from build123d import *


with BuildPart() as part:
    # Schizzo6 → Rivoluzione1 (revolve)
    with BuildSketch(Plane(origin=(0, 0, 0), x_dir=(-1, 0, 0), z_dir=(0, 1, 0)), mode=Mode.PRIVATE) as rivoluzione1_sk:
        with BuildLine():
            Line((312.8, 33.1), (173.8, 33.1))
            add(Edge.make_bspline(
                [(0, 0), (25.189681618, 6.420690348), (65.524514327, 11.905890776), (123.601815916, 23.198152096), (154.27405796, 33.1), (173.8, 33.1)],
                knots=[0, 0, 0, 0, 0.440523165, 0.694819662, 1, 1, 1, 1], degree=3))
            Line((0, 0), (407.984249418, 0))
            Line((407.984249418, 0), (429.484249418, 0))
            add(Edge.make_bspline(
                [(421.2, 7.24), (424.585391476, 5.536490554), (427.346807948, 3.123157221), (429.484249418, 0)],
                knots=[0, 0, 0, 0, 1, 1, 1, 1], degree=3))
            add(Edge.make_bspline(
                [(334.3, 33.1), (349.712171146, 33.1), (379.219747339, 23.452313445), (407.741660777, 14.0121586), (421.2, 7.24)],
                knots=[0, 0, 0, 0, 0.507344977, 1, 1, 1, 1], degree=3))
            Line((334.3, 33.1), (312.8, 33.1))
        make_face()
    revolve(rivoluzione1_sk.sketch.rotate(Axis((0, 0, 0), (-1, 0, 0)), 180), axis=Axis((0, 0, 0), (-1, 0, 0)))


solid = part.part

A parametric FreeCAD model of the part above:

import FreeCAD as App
import Part
import Sketcher

V = App.Vector

doc = App.newDocument("Part")
body = doc.addObject("PartDesign::Body", "Body")

# Sketch on XZ plane
sketch1 = body.newObject("Sketcher::SketchObject", "Sketch")
sketch1.AttachmentSupport = (doc.getObject("XZ_Plane"), [""])
sketch1.MapMode = "FlatFace"
sketch1.addGeometry([
    Part.BSplineCurve([V(0, 0, 0), V(-25.189682, 6.42069, 0), V(-65.524514, 11.905891, 0), V(-123.601816, 23.198152, 0), V(-154.274058, 33.1, 0), V(-173.8, 33.1, 0)], [4, 1, 1, 4], [0, 0.440523165, 0.694819662, 1], False, 3, [1, 1, 1, 1, 1, 1], False),  # 0
    Part.LineSegment(V(0, 0, 0), V(-429.484249, 0, 0)),  # 1
    Part.BSplineCurve([V(-421.2, 7.24, 0), V(-424.585391, 5.536491, 0), V(-427.346808, 3.123157, 0), V(-429.484249, 0, 0)], [4, 4], [0, 1], False, 3, [1, 1, 1, 1], False),  # 2
    Part.BSplineCurve([V(-334.3, 33.1, 0), V(-349.712171, 33.1, 0), V(-379.219747, 23.452313, 0), V(-407.741661, 14.012159, 0), V(-421.2, 7.24, 0)], [4, 1, 4], [0, 0.507344977, 1], False, 3, [1, 1, 1, 1, 1], False),  # 3
    Part.LineSegment(V(-334.3, 33.1, 0), V(-173.8, 33.1, 0)),  # 4
], False)
sketch1.addConstraint([
    Sketcher.Constraint("Block", 0),
    Sketcher.Constraint("Block", 2),
    Sketcher.Constraint("Block", 3),
    Sketcher.Constraint("Coincident", 0, 1, 1, 1),
    Sketcher.Constraint("Coincident", 1, 2, 2, 2),
    Sketcher.Constraint("Coincident", 3, 1, 4, 1),
    Sketcher.Constraint("Coincident", 4, 2, 0, 2),
])
revolution = body.newObject("PartDesign::Revolution", "Revolution")
revolution.Profile = sketch1
revolution.ReferenceAxis = (sketch1, ["H_Axis"])
revolution.Angle = 360

doc.recompute()
